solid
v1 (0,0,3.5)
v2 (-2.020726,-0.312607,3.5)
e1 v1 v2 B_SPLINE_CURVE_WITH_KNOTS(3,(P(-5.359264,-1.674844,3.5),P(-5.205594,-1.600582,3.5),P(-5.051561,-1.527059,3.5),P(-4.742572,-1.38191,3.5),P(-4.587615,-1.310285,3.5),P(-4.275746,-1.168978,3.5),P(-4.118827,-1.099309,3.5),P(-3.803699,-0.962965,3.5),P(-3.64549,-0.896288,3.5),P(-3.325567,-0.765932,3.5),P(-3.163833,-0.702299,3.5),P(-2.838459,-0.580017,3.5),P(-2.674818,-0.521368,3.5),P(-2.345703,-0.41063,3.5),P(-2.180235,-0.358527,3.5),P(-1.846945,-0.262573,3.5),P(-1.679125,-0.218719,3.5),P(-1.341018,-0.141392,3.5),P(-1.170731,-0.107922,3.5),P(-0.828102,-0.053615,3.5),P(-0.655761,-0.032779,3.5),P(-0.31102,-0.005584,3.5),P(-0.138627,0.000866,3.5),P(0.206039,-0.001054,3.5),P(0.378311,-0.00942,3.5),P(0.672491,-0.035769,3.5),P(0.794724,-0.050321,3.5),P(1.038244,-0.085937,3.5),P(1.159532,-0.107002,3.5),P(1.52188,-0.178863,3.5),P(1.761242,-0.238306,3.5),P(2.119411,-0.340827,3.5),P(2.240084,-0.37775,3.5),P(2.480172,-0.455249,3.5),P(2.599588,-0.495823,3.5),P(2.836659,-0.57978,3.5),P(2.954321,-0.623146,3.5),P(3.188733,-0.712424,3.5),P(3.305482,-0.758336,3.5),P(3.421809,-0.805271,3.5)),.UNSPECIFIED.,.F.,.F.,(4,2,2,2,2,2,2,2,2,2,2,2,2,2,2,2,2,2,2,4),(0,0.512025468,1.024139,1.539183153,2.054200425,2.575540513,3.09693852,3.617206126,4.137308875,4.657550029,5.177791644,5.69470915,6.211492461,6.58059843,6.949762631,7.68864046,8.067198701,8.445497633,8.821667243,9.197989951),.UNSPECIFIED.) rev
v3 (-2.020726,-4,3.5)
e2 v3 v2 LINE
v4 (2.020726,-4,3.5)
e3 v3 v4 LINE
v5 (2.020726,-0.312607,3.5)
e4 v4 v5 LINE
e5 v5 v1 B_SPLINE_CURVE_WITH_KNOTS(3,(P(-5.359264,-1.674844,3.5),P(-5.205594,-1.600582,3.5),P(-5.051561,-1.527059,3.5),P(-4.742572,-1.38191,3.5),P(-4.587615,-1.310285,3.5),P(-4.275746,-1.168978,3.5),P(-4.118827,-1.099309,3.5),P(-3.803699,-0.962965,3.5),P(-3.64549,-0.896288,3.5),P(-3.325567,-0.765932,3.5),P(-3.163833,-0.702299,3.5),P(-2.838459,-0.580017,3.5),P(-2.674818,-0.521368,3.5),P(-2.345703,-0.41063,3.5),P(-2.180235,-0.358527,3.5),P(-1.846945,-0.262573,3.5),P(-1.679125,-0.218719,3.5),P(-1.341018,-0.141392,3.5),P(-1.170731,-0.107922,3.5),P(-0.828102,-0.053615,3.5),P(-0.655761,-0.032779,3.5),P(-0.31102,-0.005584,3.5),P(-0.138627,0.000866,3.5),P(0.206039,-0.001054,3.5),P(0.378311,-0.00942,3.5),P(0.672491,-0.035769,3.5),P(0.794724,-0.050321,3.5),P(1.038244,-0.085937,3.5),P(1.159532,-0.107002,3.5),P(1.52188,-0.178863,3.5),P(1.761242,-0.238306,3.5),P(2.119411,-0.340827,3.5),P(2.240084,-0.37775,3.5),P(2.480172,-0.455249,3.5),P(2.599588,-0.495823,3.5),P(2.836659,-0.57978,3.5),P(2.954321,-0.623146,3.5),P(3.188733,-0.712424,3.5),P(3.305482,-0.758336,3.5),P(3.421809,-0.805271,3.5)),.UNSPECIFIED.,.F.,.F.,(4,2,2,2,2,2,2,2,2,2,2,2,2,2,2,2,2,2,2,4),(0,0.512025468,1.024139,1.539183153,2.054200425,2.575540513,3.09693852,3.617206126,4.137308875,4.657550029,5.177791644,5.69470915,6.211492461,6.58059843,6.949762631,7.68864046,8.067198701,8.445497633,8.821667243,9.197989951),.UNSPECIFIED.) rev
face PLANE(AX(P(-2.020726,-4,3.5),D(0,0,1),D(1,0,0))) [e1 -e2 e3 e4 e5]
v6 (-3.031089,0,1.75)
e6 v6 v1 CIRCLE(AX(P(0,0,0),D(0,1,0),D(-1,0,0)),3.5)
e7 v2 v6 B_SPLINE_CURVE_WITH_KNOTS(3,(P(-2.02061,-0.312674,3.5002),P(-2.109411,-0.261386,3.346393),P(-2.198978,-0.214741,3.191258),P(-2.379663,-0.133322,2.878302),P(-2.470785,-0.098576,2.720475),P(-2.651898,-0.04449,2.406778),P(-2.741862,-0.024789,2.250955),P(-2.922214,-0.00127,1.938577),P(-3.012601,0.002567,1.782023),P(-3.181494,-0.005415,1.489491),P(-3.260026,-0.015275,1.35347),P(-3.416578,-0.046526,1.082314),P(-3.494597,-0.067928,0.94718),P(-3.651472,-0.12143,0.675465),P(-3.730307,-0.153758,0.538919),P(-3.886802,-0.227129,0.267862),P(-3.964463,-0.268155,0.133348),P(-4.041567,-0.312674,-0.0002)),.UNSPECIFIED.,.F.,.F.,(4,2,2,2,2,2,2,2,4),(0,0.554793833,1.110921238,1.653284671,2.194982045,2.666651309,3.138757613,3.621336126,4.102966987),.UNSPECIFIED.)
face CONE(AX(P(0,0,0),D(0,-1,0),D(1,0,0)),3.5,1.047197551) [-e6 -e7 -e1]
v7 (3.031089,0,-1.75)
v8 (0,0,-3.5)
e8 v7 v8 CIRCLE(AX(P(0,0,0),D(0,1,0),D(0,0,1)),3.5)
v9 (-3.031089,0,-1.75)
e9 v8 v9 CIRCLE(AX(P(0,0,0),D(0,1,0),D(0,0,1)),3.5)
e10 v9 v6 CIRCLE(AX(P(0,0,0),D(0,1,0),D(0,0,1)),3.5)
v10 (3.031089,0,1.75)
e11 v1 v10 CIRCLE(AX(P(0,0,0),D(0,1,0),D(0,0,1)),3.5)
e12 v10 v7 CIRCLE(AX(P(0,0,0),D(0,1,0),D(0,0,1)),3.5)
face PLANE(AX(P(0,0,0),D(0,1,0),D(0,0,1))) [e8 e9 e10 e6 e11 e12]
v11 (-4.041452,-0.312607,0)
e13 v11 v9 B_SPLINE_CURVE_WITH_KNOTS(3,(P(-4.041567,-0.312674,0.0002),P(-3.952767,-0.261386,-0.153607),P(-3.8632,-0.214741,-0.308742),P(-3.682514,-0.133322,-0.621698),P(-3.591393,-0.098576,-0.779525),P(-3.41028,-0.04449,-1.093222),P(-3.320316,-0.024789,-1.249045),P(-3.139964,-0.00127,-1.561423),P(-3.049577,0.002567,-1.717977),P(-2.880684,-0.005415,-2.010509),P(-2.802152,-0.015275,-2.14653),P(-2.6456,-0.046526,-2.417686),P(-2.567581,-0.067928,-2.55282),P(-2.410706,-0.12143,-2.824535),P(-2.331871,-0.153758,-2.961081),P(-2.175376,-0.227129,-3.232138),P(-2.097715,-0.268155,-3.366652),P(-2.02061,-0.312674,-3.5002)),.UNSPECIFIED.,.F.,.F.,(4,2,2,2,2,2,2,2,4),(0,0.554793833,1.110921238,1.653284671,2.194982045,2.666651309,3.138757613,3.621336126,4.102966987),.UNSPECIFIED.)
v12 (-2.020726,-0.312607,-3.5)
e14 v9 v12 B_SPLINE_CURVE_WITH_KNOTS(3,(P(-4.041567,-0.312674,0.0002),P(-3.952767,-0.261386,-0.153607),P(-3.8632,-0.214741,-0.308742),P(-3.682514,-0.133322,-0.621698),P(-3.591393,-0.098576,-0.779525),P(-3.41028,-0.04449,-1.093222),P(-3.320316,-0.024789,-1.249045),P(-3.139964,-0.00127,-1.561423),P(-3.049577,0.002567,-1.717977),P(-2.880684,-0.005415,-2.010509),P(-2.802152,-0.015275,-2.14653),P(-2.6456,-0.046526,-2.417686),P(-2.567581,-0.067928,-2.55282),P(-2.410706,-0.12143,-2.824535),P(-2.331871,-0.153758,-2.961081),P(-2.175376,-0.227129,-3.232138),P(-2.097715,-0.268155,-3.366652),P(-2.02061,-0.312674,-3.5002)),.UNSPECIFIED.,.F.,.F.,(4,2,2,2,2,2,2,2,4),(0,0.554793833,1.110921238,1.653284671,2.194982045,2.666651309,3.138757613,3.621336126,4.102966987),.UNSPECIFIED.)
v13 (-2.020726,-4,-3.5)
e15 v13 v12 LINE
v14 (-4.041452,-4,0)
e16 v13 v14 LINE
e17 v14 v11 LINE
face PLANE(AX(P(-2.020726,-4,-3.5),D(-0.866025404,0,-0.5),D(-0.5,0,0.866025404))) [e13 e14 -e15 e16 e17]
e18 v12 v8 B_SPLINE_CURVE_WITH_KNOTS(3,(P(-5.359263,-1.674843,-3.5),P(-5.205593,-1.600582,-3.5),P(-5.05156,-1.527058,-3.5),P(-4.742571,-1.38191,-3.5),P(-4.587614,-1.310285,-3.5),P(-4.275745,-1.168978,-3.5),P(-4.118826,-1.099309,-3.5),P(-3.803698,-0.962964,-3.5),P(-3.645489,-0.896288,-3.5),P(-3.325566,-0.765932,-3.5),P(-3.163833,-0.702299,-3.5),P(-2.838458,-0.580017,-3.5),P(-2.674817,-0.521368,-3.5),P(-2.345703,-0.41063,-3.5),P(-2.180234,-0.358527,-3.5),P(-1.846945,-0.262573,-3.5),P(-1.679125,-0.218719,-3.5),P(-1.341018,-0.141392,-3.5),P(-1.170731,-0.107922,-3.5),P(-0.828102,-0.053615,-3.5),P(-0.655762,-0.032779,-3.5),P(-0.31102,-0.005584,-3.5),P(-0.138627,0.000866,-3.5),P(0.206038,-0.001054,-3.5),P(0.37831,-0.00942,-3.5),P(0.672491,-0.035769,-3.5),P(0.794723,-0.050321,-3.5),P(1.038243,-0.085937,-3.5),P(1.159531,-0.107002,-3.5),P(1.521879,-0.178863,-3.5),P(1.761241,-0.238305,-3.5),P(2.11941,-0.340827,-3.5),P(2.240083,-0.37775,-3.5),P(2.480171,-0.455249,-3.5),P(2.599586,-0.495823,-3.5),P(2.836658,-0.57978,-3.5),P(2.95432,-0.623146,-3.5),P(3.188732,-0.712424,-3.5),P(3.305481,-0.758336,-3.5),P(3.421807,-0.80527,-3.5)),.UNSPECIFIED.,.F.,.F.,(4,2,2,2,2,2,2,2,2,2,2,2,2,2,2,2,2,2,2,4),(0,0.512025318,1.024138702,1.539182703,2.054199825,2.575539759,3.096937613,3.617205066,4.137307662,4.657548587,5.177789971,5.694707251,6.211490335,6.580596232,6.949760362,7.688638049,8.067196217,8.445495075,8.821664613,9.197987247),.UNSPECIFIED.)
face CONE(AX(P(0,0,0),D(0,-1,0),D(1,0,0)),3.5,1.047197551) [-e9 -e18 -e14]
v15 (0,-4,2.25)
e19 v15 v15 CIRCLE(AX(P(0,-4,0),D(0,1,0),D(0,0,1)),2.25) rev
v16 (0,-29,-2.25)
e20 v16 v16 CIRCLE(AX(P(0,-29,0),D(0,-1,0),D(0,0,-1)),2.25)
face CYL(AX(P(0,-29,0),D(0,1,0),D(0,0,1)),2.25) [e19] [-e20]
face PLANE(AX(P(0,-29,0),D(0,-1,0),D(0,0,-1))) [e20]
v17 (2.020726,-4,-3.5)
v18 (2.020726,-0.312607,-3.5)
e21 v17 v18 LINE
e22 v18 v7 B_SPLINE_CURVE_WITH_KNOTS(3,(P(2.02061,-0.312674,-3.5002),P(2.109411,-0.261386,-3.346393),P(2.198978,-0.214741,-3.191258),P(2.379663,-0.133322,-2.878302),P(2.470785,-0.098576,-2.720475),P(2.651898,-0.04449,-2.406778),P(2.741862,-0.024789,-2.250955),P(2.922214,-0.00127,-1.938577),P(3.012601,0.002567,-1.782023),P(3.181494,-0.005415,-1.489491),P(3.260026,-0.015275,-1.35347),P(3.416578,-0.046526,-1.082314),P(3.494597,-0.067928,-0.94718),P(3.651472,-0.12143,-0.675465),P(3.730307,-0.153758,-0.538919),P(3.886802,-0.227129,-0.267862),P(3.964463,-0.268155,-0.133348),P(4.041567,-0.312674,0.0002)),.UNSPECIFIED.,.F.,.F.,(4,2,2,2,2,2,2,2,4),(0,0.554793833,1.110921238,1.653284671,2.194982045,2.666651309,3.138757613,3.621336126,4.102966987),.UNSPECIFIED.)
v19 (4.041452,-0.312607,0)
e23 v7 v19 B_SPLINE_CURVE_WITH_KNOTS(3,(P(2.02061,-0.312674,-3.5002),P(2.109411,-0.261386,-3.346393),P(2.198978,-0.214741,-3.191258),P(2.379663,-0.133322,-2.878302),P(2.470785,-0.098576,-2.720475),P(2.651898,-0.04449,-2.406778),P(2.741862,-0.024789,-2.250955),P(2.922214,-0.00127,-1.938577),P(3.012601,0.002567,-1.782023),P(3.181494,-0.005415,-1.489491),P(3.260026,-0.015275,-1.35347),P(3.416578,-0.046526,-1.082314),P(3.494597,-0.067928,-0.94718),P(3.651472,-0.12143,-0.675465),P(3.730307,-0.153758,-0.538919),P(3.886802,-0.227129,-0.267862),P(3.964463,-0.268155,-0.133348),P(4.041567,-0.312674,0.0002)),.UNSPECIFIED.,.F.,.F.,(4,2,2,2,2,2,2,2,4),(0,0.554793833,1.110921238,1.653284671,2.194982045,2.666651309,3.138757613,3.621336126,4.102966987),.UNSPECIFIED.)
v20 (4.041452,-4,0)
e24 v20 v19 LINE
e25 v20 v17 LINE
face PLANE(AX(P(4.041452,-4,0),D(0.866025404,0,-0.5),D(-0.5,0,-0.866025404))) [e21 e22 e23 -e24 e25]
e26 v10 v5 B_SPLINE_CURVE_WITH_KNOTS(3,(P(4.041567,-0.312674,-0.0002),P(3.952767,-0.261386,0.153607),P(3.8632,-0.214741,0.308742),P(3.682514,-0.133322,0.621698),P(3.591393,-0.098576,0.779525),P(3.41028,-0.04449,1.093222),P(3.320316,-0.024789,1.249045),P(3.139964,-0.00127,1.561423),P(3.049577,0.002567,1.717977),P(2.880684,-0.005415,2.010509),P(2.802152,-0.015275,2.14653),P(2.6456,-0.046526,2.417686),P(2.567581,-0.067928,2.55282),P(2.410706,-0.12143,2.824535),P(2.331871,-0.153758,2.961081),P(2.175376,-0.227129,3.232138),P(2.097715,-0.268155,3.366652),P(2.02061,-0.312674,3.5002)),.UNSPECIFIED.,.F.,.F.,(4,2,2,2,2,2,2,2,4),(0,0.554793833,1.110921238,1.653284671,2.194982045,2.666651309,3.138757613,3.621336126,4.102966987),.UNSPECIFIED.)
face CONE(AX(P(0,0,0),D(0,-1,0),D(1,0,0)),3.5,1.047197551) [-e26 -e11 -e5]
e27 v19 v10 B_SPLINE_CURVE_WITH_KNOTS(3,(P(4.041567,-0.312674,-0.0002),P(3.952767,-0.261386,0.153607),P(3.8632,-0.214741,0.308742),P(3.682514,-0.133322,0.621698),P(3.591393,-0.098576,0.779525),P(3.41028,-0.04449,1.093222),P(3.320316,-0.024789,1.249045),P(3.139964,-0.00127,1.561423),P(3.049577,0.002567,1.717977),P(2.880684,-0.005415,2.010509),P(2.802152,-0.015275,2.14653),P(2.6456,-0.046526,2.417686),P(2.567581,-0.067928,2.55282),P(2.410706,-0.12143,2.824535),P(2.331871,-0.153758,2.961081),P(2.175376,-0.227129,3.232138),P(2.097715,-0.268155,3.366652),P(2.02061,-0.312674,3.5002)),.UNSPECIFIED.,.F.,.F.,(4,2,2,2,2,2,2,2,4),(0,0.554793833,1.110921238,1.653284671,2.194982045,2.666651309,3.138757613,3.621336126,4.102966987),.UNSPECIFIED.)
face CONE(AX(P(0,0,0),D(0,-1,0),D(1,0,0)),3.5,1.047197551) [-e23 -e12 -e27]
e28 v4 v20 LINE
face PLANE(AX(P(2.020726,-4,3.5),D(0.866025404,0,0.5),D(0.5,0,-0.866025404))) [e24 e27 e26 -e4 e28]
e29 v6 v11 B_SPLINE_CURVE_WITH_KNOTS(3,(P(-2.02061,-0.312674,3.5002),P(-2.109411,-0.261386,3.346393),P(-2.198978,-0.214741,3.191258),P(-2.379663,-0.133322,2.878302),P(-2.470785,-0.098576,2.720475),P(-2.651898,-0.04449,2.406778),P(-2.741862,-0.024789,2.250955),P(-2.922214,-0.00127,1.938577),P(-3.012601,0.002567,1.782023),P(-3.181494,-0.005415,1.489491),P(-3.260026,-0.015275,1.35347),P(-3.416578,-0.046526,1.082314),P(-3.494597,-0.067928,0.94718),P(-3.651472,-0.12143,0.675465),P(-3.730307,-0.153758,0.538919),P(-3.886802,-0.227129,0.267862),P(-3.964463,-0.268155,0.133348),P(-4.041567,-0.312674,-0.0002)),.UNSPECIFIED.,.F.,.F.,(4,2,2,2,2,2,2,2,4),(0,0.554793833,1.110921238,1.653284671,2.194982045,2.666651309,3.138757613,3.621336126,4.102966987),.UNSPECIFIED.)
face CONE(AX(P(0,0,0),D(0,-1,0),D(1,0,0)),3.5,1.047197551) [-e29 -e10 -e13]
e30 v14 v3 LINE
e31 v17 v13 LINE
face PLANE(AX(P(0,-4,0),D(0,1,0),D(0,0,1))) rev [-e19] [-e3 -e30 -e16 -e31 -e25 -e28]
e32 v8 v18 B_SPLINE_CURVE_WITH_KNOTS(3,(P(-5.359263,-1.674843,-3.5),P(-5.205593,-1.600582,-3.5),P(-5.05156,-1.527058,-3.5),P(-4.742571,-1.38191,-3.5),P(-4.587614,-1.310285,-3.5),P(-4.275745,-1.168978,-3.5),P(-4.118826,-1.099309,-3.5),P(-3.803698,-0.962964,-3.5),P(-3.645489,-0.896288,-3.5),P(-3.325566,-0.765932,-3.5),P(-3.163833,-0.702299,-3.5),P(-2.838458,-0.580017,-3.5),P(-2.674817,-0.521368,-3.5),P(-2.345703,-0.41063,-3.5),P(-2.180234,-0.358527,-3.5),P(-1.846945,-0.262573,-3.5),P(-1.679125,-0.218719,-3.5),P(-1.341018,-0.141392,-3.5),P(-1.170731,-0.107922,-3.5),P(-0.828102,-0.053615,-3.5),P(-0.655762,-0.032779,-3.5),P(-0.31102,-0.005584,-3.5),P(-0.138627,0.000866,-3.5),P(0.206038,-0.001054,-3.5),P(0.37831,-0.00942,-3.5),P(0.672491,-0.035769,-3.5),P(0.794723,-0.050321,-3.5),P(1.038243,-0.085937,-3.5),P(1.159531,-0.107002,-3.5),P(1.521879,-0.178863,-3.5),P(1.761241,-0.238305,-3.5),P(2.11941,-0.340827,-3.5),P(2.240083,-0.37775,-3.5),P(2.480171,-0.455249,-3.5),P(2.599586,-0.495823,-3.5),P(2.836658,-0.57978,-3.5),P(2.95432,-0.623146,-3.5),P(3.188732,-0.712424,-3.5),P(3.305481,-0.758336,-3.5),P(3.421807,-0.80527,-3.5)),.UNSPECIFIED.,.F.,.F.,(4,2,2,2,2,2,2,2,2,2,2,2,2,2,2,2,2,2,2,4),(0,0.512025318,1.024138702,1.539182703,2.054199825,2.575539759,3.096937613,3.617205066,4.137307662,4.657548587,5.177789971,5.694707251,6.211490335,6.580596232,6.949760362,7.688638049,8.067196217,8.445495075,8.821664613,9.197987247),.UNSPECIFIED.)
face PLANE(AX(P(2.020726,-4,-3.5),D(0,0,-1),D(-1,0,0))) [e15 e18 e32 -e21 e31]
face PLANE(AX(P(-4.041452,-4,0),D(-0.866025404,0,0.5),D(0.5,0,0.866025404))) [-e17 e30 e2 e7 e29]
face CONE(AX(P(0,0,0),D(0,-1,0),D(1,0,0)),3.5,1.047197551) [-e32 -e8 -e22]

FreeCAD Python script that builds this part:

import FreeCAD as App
import Part
import Sketcher
from FreeCAD import Vector
Q = App.Units.Quantity


def add_polygon(sketch, points):
    """Adds a closed chain of lines whose ends are joined by coincident constraints."""
    first, n = sketch.GeometryCount, len(points)
    for a, b in zip(points, points[1:] + points[:1]):
        sketch.addGeometry(Part.LineSegment(App.Vector(*a, 0), App.Vector(*b, 0)), False)
    for i in range(n):
        sketch.addConstraint(Sketcher.Constraint("Coincident", first + i, 2, first + (i + 1) % n, 1))

doc = App.newDocument("Part")
params = doc.addObject("Spreadsheet::Sheet", "Params")
for row, (alias, value) in enumerate([
    ("pad1_length", "4 mm"),
    ("groove_angle", "360 deg"),
    ("sketch3_diameter", "4.5 mm"),
    ("pad2_length", "25 mm"),
], start=1):
    params.set(f"A{row}", alias)
    params.set(f"B{row}", "=" + value)
    params.setAlias(f"B{row}", alias)

body = doc.addObject("PartDesign::Body", "Body")

# Sketch on XZ plane
sketch1 = body.newObject("Sketcher::SketchObject", "Sketch")
sketch1.AttachmentSupport = (doc.getObject("XZ_Plane"), [""])
sketch1.MapMode = "FlatFace"
add_polygon(sketch1, [(4.041452, 0), (2.020726, -3.5), (-2.020726, -3.5), (-4.041452, 0), (-2.020726, 3.5), (2.020726, 3.5)])  # lines 0-5
sketch1.addConstraint(Sketcher.Constraint("Horizontal", 1))
sketch1.addConstraint(Sketcher.Constraint("Horizontal", 4))
sketch1.addConstraint(Sketcher.Constraint("Symmetric", 0, 2, 3, 2, -1, 1))
sketch1.addConstraint(Sketcher.Constraint("Symmetric", 2, 2, 5, 2, -1, 1))
sketch1.addConstraint(Sketcher.Constraint("PointOnObject", 2, 2, -1))
sketch1.addConstraint(Sketcher.Constraint("Parallel", 2, 5))
sketch1.addConstraint(Sketcher.Constraint("Vertical", 1, 2, 3, 2))
sketch1.addConstraint(Sketcher.Constraint("Angle", 0, Q("-120 deg")))
sketch1.addConstraint(Sketcher.Constraint("DistanceY", 1, 2, 3, 2, 7.0))
sketch1.addConstraint(Sketcher.Constraint("DistanceX", 1, 2, 1, 1, 4.041452))
pad1 = body.newObject("PartDesign::Pad", "Pad")
pad1.Profile = sketch1
pad1.setExpression("Length", "Params.pad1_length")

# Sketch on XY plane
sketch2 = body.newObject("Sketcher::SketchObject", "Sketch001")
sketch2.AttachmentSupport = (doc.getObject("XY_Plane"), [""])
sketch2.MapMode = "FlatFace"
add_polygon(sketch2, [(4.041452, 0), (3.5, 0), (4.041452, -0.312607)])  # lines 0-2
sketch2.addConstraint(Sketcher.Constraint("Horizontal", 0))
sketch2.addConstraint(Sketcher.Constraint("Vertical", 2))
sketch2.addConstraint(Sketcher.Constraint("PointOnObject", 0, 2, -1))
sketch2.addConstraint(Sketcher.Constraint("Angle", 1, Q("-30 deg")))
sketch2.addConstraint(Sketcher.Constraint("DistanceX", -1, 1, 0, 2, 3.5))
sketch2.addConstraint(Sketcher.Constraint("DistanceX", 0, 2, 0, 1, 0.541452))
groove = body.newObject("PartDesign::Groove", "Groove")
groove.Profile = sketch2
groove.ReferenceAxis = (sketch2, ["V_Axis"])
groove.setExpression("Angle", "Params.groove_angle")

# Sketch on XZ plane
sketch3 = body.newObject("Sketcher::SketchObject", "Sketch002")
sketch3.AttachmentSupport = (doc.getObject("XZ_Plane"), [""])
sketch3.MapMode = "FlatFace"
sketch3.AttachmentOffset = App.Placement(Vector(0, 0, 4), App.Rotation())
sketch3.addGeometry(Part.Circle(Vector(0, 0, 0), Vector(0, 0, 1), 2.25), False)
sketch3.addConstraint(Sketcher.Constraint("Coincident", 0, 3, -1, 1))
sketch3.addConstraint(Sketcher.Constraint("Diameter", 0, 4.5))
sketch3.setExpression("Constraints[1]", "Params.sketch3_diameter")
pad2 = body.newObject("PartDesign::Pad", "Pad001")
pad2.Profile = sketch3
pad2.setExpression("Length", "Params.pad2_length")

doc.recompute()
